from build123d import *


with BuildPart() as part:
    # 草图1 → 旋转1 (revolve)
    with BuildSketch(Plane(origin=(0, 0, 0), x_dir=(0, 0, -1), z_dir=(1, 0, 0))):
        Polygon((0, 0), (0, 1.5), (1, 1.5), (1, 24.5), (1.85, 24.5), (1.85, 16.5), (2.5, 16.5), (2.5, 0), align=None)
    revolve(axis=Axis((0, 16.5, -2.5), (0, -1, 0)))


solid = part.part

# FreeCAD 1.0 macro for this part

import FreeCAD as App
import Part
import Sketcher
from FreeCAD import Vector


def add_polygon(sketch, points):
    """Adds a closed chain of lines whose ends are joined by coincident constraints."""
    first, n = sketch.GeometryCount, len(points)
    for a, b in zip(points, points[1:] + points[:1]):
        sketch.addGeometry(Part.LineSegment(App.Vector(*a, 0), App.Vector(*b, 0)), False)
    for i in range(n):
        sketch.addConstraint(Sketcher.Constraint("Coincident", first + i, 2, first + (i + 1) % n, 1))

doc = App.newDocument("Part")
body = doc.addObject("PartDesign::Body", "Body")

sketch1 = body.newObject("Sketcher::SketchObject", "Sketch")
sketch1.AttachmentSupport = (doc.getObject("YZ_Plane"), [""])
sketch1.MapMode = "FlatFace"
add_polygon(sketch1, [(1.5, 0), (0, 0), (0, -2.5), (16.5, -2.5), (16.5, -1.85), (24.5, -1.85), (24.5, -1), (1.5, -1)])
sketch1.addGeometry(Part.LineSegment(Vector(24.5, -2.5, 0), Vector(0, -2.5, 0)), True)
sketch1.addConstraint([
    Sketcher.Constraint("Horizontal", 0),
    Sketcher.Constraint("Vertical", 1),
    Sketcher.Constraint("Horizontal", 2),
    Sketcher.Constraint("Vertical", 3),
    Sketcher.Constraint("Horizontal", 4),
    Sketcher.Constraint("Vertical", 5),
    Sketcher.Constraint("Horizontal", 6),
    Sketcher.Constraint("Vertical", 7),
    Sketcher.Constraint("Horizontal", 8),
    Sketcher.Constraint("Coincident", 0, 2, -1, 1),
    Sketcher.Constraint("Coincident", 8, 2, 1, 2),
    Sketcher.Constraint("Vertical", 5, 2, 8, 1),
    Sketcher.Constraint("DistanceX", 4, 1, 4, 2, 8.0),
    Sketcher.Constraint("DistanceX", 6, 2, 6, 1, 23.0),
    Sketcher.Constraint("DistanceY", 7, 1, 7, 2, 1.0),
    Sketcher.Constraint("DistanceX", 0, 2, 0, 1, 1.5),
    Sketcher.Constraint("DistanceY", 1, 2, 1, 1, 2.5),
    Sketcher.Constraint("DistanceY", 3, 1, 3, 2, 0.65),
])
revolution = body.newObject("PartDesign::Revolution", "Revolution")
revolution.Profile = sketch1
revolution.ReferenceAxis = (sketch1, ["Axis0"])
revolution.Angle = 360

doc.recompute()
